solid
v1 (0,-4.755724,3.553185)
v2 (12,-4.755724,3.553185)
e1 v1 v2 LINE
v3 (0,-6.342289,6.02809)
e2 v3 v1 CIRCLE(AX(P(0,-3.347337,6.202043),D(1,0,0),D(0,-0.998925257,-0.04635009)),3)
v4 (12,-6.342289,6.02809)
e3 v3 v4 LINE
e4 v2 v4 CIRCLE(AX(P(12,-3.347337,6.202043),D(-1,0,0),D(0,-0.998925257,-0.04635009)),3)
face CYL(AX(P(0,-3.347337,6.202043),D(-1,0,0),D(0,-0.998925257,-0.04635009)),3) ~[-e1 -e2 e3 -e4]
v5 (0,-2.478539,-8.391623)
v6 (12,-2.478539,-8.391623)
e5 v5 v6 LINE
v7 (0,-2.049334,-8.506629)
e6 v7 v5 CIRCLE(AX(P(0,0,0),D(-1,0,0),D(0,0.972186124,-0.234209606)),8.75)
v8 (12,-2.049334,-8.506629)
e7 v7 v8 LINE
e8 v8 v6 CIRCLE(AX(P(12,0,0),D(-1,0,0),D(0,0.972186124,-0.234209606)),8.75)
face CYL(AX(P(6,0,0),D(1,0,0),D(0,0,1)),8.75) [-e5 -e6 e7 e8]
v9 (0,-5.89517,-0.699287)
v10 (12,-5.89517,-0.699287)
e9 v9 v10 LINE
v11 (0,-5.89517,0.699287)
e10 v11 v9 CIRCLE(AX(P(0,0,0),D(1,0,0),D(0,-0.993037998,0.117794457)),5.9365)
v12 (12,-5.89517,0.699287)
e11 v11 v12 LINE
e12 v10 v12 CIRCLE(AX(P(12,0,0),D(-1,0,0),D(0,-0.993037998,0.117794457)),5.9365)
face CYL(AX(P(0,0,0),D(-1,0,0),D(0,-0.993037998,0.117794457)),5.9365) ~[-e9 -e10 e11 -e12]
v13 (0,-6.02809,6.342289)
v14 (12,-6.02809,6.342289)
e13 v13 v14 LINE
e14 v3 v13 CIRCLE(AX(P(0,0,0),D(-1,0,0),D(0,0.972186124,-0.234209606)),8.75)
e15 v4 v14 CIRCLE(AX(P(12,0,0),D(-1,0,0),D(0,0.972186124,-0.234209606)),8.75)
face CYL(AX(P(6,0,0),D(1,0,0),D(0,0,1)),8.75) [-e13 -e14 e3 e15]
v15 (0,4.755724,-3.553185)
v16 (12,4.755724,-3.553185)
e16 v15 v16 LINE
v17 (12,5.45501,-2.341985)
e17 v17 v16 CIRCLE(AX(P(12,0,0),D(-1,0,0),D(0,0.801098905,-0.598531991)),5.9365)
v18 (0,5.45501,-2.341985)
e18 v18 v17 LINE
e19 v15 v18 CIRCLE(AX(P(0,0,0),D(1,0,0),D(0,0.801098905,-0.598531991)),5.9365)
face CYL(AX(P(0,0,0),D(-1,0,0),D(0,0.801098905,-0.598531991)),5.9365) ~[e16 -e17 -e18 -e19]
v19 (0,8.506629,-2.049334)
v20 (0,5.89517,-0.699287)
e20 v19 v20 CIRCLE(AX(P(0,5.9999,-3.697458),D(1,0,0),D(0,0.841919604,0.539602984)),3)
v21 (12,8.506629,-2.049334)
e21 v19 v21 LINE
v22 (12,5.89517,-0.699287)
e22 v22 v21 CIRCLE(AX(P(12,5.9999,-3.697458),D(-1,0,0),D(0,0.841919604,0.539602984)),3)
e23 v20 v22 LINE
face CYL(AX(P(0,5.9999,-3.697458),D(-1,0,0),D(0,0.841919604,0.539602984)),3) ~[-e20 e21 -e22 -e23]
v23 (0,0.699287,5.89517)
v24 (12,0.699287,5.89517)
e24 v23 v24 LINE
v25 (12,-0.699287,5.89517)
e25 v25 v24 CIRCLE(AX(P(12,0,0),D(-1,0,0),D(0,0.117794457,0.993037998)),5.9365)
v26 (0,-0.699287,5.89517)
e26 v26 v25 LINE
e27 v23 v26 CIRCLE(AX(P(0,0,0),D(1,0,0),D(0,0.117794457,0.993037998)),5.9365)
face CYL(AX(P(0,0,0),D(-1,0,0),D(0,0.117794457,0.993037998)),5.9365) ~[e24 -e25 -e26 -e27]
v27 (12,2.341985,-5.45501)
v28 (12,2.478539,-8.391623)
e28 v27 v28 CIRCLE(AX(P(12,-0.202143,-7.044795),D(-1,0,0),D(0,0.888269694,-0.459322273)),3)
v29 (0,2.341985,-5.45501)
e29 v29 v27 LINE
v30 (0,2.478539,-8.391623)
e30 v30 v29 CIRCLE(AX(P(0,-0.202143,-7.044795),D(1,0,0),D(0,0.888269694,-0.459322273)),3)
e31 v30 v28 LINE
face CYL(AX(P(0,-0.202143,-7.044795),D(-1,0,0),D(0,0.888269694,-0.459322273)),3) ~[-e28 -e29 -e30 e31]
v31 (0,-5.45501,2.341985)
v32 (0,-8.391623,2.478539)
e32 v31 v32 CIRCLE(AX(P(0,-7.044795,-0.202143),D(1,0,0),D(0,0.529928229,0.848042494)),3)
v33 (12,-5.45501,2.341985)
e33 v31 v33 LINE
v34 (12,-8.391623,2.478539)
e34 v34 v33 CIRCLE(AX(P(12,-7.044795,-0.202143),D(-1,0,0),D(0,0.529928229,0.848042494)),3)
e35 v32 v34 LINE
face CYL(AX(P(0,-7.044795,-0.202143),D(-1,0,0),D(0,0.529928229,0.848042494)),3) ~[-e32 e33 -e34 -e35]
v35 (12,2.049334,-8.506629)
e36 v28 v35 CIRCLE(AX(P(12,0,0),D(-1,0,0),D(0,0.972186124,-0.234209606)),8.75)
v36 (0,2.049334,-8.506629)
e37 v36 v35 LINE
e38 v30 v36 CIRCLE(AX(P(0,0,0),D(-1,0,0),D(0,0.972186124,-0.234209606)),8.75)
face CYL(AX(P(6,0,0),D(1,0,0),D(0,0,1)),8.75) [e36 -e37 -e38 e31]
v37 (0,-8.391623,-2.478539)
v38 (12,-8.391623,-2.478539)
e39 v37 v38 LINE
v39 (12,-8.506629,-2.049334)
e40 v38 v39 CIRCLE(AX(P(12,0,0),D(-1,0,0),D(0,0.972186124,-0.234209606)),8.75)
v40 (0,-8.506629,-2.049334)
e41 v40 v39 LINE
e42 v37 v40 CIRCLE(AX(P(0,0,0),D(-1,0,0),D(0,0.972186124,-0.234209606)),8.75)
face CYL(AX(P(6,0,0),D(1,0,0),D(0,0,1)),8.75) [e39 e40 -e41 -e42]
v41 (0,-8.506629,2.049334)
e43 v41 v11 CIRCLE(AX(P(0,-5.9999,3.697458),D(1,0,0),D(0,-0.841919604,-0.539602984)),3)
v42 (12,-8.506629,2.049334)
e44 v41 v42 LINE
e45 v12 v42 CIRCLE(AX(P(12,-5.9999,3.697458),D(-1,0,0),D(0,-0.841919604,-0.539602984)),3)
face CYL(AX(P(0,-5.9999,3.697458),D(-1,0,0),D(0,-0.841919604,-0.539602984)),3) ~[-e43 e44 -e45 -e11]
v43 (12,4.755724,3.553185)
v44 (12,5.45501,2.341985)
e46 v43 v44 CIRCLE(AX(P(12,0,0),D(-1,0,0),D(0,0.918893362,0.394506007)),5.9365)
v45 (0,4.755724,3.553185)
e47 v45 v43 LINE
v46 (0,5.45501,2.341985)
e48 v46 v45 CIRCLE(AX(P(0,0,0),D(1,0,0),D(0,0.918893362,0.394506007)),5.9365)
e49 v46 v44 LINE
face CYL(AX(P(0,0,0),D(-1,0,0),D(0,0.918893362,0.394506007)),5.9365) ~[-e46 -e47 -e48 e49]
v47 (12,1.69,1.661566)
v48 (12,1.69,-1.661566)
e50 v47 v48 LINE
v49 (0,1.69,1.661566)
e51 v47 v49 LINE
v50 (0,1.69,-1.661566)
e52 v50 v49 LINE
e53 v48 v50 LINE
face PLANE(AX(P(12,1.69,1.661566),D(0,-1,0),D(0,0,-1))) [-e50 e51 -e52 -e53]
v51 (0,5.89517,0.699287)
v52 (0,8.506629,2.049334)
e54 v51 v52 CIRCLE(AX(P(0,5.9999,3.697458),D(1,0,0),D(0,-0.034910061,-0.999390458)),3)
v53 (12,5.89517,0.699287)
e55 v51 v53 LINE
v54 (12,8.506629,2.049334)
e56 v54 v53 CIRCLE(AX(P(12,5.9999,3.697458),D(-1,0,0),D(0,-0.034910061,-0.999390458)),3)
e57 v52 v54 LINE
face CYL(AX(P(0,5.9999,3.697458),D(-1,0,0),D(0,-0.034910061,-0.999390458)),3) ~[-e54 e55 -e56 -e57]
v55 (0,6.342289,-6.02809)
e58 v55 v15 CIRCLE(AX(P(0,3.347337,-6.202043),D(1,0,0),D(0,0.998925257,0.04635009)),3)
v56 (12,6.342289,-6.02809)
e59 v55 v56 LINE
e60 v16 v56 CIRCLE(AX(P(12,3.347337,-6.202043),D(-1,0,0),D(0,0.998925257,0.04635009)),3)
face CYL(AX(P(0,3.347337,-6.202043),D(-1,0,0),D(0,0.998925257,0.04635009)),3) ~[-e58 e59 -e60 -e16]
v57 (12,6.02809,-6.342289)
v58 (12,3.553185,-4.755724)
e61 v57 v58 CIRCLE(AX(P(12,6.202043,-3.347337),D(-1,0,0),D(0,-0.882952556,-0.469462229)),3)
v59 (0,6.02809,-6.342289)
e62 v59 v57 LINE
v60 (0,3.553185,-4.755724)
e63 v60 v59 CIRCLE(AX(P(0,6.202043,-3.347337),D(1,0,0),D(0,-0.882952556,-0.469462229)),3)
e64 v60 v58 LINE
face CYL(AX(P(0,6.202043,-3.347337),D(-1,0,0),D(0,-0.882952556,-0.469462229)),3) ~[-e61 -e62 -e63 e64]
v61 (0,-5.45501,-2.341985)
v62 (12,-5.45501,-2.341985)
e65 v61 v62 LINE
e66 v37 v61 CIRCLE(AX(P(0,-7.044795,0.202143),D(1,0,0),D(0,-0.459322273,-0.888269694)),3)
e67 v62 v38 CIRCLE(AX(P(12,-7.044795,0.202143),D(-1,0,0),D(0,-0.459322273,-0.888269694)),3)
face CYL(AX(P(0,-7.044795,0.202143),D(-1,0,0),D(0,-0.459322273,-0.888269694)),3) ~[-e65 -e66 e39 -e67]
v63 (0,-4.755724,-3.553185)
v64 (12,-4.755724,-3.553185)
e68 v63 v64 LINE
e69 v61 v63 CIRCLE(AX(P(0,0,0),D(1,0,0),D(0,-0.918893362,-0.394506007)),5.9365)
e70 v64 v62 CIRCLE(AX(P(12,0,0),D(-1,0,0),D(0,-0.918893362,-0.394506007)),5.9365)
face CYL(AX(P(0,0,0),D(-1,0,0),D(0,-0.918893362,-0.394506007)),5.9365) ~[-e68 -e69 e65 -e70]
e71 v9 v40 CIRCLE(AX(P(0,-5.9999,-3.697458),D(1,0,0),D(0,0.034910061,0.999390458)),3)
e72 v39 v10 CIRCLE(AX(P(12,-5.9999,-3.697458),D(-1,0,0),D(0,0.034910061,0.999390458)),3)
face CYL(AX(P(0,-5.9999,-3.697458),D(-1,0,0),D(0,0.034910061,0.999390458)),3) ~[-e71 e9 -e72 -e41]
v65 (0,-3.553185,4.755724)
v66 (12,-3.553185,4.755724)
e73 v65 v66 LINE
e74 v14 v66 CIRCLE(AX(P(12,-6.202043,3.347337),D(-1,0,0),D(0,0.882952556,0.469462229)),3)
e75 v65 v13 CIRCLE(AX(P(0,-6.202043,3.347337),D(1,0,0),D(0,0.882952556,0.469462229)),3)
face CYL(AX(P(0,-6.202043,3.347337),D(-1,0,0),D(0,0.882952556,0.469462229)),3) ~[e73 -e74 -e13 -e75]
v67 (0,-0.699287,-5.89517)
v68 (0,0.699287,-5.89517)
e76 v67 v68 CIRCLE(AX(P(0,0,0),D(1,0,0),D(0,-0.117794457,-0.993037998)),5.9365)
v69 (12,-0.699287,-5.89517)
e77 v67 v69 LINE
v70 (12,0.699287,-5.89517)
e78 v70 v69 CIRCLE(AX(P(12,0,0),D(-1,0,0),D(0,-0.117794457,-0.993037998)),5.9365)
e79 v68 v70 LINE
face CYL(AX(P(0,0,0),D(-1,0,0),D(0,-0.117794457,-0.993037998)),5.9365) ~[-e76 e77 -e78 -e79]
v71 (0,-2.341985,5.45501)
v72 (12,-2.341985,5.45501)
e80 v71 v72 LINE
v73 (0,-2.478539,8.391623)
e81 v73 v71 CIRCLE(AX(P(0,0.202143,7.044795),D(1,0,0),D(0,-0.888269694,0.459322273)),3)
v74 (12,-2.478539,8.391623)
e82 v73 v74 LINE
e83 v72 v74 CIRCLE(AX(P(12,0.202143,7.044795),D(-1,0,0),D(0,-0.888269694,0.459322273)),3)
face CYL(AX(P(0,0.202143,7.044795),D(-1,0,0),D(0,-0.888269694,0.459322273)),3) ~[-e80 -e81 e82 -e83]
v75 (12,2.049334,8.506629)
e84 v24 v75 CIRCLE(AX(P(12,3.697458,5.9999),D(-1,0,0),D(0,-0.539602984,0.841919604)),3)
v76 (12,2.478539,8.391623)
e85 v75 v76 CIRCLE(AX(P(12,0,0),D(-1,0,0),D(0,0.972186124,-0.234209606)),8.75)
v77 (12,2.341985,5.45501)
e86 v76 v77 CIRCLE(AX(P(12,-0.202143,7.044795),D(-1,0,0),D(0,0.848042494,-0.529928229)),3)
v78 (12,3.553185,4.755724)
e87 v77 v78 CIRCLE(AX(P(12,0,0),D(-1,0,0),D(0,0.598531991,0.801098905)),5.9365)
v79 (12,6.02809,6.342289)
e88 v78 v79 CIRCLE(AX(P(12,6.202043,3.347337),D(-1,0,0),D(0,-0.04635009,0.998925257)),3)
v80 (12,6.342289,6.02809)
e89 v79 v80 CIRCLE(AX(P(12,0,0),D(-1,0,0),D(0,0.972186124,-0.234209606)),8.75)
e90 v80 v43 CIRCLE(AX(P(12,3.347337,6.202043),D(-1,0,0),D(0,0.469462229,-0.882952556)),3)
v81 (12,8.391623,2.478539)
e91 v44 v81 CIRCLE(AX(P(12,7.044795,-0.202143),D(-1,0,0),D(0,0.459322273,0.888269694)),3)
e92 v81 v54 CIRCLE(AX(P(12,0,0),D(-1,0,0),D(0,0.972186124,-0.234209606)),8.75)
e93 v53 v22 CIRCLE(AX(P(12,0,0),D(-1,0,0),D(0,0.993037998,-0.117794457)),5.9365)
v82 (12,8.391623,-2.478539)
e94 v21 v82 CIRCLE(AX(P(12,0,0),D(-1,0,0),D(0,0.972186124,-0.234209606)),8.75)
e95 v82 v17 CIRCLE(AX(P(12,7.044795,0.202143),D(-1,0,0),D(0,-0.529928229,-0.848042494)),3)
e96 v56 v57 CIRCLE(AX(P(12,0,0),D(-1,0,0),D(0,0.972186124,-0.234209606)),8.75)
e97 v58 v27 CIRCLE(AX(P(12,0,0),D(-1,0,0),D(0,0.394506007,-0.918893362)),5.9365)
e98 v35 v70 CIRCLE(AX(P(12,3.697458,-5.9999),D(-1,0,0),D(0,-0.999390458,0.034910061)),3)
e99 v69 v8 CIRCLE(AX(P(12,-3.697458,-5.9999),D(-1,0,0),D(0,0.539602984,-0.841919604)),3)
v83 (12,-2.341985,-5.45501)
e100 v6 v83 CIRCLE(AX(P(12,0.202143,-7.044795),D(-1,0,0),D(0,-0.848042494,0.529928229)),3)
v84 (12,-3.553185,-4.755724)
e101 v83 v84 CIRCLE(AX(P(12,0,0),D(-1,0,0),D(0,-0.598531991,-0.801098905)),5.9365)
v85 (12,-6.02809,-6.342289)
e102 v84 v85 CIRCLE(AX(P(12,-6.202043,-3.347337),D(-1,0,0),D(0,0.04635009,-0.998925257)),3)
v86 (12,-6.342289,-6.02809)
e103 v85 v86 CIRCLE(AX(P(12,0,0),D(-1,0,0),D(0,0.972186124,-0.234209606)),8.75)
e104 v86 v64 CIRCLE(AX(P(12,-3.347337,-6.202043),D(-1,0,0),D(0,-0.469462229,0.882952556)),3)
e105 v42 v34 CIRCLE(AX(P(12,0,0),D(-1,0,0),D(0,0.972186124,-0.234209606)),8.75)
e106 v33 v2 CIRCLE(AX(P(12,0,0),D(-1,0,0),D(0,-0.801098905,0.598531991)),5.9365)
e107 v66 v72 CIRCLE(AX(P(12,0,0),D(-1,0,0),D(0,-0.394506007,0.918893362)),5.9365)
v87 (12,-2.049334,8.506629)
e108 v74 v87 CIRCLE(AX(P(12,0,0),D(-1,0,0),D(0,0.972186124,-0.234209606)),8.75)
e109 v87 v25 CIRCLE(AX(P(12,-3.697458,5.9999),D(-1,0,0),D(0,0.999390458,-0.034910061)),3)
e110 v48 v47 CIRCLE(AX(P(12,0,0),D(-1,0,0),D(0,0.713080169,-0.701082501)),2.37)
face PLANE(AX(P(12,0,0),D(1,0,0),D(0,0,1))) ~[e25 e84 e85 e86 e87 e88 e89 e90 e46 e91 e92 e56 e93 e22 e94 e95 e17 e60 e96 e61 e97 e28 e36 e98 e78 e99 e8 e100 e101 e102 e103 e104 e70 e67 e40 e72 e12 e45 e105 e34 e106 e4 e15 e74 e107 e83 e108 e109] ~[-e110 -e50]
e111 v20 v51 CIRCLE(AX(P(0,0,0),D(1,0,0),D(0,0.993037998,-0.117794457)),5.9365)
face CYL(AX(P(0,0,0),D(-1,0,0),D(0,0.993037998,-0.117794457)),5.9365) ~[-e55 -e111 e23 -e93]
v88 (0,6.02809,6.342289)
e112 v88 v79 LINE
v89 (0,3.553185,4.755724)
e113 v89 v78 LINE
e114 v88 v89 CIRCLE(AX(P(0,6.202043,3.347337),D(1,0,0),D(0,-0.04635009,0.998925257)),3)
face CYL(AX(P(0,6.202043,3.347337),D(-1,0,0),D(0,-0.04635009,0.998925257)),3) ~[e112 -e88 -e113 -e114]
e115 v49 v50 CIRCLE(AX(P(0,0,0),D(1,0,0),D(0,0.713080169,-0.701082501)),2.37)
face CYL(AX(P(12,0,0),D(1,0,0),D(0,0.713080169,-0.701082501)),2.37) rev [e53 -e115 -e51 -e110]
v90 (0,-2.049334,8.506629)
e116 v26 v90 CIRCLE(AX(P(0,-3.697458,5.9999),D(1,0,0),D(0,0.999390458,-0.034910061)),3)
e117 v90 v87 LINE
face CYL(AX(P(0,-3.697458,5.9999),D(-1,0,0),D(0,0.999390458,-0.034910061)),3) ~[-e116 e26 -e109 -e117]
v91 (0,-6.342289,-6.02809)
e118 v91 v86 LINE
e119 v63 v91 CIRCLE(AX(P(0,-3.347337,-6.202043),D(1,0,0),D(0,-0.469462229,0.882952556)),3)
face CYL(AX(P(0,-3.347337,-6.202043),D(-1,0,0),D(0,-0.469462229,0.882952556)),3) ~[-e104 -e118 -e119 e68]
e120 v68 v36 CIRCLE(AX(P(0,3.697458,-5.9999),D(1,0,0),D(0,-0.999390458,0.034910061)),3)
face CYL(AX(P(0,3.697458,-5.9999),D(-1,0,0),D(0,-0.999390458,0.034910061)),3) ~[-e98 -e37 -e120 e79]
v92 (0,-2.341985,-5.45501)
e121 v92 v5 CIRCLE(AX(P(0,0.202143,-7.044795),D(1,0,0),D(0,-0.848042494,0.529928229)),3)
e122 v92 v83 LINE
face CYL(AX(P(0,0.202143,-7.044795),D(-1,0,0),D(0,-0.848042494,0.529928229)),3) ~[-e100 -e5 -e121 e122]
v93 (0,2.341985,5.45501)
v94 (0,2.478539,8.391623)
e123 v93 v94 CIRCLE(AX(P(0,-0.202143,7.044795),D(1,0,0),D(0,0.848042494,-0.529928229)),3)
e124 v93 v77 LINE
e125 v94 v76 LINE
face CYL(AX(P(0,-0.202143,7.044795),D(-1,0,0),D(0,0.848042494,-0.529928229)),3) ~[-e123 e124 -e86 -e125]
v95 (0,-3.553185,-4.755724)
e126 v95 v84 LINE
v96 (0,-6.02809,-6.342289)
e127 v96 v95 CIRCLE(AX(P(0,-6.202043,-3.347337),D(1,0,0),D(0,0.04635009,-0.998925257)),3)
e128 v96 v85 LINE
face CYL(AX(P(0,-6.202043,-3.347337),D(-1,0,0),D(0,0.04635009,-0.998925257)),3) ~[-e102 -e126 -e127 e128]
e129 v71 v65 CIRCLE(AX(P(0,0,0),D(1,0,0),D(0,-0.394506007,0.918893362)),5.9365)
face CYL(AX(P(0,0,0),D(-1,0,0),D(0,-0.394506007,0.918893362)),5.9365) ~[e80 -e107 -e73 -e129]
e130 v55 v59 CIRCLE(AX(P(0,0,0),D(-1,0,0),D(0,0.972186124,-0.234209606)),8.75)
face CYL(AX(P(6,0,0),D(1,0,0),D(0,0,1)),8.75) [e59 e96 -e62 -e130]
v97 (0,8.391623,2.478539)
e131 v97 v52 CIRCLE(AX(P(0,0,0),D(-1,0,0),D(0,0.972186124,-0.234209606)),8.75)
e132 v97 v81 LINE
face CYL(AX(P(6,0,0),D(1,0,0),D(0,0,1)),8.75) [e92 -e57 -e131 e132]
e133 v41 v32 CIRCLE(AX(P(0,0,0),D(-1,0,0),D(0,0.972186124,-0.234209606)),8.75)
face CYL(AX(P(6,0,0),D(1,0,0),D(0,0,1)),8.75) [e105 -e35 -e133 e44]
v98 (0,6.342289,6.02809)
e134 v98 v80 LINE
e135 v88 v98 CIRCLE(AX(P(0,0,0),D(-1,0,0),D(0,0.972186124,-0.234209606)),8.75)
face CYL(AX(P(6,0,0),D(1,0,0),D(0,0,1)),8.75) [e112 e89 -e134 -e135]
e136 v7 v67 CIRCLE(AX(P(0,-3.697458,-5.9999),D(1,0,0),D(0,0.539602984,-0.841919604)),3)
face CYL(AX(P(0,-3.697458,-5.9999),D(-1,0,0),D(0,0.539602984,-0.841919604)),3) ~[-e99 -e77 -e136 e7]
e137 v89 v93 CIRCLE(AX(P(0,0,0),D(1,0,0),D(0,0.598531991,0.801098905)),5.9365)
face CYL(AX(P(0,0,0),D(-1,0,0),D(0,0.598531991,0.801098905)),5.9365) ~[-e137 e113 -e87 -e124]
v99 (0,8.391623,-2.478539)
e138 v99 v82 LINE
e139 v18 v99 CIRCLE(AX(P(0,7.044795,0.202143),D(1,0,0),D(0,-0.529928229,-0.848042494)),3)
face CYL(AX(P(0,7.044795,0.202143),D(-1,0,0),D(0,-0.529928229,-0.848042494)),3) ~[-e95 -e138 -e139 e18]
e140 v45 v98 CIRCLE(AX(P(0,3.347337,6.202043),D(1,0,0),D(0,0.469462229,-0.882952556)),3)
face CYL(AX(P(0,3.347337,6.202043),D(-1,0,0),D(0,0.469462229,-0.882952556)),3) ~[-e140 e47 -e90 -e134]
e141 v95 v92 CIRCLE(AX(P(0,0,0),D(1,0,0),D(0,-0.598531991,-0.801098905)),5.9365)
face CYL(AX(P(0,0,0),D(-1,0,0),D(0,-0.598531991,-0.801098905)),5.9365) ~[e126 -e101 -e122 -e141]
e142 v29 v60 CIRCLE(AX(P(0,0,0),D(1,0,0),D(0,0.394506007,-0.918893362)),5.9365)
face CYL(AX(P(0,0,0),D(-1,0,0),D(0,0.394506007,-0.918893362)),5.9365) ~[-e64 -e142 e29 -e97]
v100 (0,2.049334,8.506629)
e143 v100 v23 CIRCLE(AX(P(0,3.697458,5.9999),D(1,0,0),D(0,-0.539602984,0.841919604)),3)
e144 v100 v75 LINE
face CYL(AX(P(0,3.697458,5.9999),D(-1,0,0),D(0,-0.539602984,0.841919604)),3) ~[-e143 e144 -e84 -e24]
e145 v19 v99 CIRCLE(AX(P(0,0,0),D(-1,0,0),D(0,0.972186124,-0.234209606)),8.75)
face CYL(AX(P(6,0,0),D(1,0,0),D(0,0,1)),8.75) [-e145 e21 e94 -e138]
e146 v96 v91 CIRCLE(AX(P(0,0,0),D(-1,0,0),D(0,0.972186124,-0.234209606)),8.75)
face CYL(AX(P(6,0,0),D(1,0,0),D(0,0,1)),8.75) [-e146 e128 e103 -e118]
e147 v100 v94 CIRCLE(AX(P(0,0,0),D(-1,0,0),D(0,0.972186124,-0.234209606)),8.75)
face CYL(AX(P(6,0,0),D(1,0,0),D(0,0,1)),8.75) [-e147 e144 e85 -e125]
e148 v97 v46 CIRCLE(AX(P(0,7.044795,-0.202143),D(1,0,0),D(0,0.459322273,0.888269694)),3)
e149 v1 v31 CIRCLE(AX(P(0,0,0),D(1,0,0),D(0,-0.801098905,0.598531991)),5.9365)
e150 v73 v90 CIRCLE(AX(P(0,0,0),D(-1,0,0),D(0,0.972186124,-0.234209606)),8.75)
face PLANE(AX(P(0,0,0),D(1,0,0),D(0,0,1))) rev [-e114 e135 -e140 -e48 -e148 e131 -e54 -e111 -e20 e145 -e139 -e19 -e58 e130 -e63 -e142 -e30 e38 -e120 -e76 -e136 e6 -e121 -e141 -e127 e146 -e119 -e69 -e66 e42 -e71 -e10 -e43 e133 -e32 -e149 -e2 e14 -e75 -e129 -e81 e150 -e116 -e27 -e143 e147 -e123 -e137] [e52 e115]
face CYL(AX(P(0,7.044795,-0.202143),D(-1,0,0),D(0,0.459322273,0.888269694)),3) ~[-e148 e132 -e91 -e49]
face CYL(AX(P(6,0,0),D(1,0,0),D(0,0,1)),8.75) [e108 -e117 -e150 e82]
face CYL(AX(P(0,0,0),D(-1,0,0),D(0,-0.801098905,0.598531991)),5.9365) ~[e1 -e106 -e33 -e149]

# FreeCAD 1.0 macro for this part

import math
import FreeCAD as App
import Part
import Sketcher
Q = App.Units.Quantity


def add_polygon(sketch, points):
    """Adds a closed chain of lines whose ends are joined by coincident constraints."""
    first, n = sketch.GeometryCount, len(points)
    for a, b in zip(points, points[1:] + points[:1]):
        sketch.addGeometry(Part.LineSegment(App.Vector(*a, 0), App.Vector(*b, 0)), False)
    for i in range(n):
        sketch.addConstraint(Sketcher.Constraint("Coincident", first + i, 2, first + (i + 1) % n, 1))

doc = App.newDocument("Part")
params = doc.addObject("Spreadsheet::Sheet", "Params")
for row, (alias, value) in enumerate([
    ("sketch1_width", "12 mm"),
    ("sketch1_height", "8.75 mm"),
    ("revolution_angle", "360 deg"),
    ("sketch2_radius", "3 mm"),
    ("sketch3_diameter", "0.8 mm"),
    ("pocket2_length", "100.000102 mm"),
    ("sketch4_radius", "2.37 mm"),
], start=1):
    params.set(f"A{row}", alias)
    params.set(f"B{row}", "=" + value)
    params.setAlias(f"B{row}", alias)

body = doc.addObject("PartDesign::Body", "Body")

# Sketch on XZ plane
sketch1 = body.newObject("Sketcher::SketchObject", "Sketch")
sketch1.AttachmentSupport = (doc.getObject("XZ_Plane"), [""])
sketch1.MapMode = "FlatFace"
add_polygon(sketch1, [(0, -9), (0, 0), (12, 0), (12, -9)])  # lines 0-3
sketch1.addConstraint([
    Sketcher.Constraint("Vertical", 0),
    Sketcher.Constraint("Horizontal", 1),
    Sketcher.Constraint("Vertical", 2),
    Sketcher.Constraint("Horizontal", 3),
    Sketcher.Constraint("Coincident", 0, 2, -1, 1),
    Sketcher.Constraint("DistanceX", 1, 1, 1, 2, Q("12 mm")),
    Sketcher.Constraint("DistanceY", 0, 1, 0, 2, Q("8.75 mm")),
])
sketch1.setExpression("Constraints[9]", "Params.sketch1_width")
sketch1.setExpression("Constraints[10]", "Params.sketch1_height")
revolution = body.newObject("PartDesign::Revolution", "Revolution")
revolution.Profile = sketch1
revolution.ReferenceAxis = (sketch1, ["H_Axis"])
revolution.setExpression("Angle", "Params.revolution_angle")

# Sketch on YZ plane
sketch2 = body.newObject("Sketcher::SketchObject", "Sketch001")
sketch2.AttachmentSupport = (doc.getObject("YZ_Plane"), [""])
sketch2.MapMode = "FlatFace"
sketch2.addGeometry([
    Part.ArcOfCircle(Part.Circle(App.Vector(0, 0, 0), App.Vector(0, 0, 1), 5.9), math.radians(-6.76), math.radians(6.76)),
    Part.ArcOfCircle(Part.Circle(App.Vector(6, -3.7, 0), App.Vector(0, 0, 1), 3), math.radians(33), math.radians(92)),
    Part.ArcOfCircle(Part.Circle(App.Vector(0, 0, 0), App.Vector(0, 0, 1), 8.8), math.radians(-14), math.radians(14)),
    Part.ArcOfCircle(Part.Circle(App.Vector(6, 3.7, 0), App.Vector(0, 0, 1), 3), math.radians(-92), math.radians(-33)),
], False)
sketch2.addConstraint([
    Sketcher.Constraint("Coincident", 0, 1, 1, 2),
    Sketcher.Constraint("Coincident", 1, 1, 2, 1),
    Sketcher.Constraint("Coincident", 2, 2, 3, 2),
    Sketcher.Constraint("Coincident", 3, 1, 0, 2),
    Sketcher.Constraint("Coincident", 0, 3, -1, 1),
    Sketcher.Constraint("Coincident", 2, 3, -1, 1),
    Sketcher.Constraint("Equal", 1, 3),
    Sketcher.Constraint("Symmetric", 1, 3, 3, 3, -1),
    Sketcher.Constraint("Radius", 1, Q("3 mm")),
    Sketcher.Constraint("Radius", 0, Q("5.9365 mm")),
    Sketcher.Constraint("Radius", 2, Q("8.7754 mm")),
    Sketcher.Constraint("DistanceX", -1, 1, 1, 3, Q("5.9999 mm")),
    Sketcher.Constraint("DistanceY", 1, 1, 2, 2, Q("4.157298 mm")),
])
sketch2.setExpression("Constraints[8]", "Params.sketch2_radius")
pocket1 = body.newObject("PartDesign::Pocket", "Pocket")
pocket1.Profile = sketch2
pocket1.Type = "ThroughAll"
pocket1.Reversed = True
doc.recompute()

polarpattern = body.newObject("PartDesign::PolarPattern", "PolarPattern")
polarpattern.Originals = [pocket1]
polarpattern.Axis = (doc.getObject("X_Axis"), [""])
polarpattern.Angle = 360
polarpattern.Occurrences = 12
body.Tip = polarpattern

# Sketch on YZ plane
sketch3 = body.newObject("Sketcher::SketchObject", "Sketch002")
sketch3.AttachmentSupport = (doc.getObject("YZ_Plane"), [""])
sketch3.MapMode = "FlatFace"
sketch3.addGeometry(Part.Circle(App.Vector(0, 0, 0), App.Vector(0, 0, 1), 0.4), False)
sketch3.addConstraint([
    Sketcher.Constraint("Coincident", 0, 3, -1, 1),
    Sketcher.Constraint("Diameter", 0, Q("0.8 mm")),
])
sketch3.setExpression("Constraints[1]", "Params.sketch3_diameter")
pocket2 = body.newObject("PartDesign::Pocket", "Pocket001")
pocket2.Profile = sketch3
pocket2.setExpression("Length", "Params.pocket2_length")
pocket2.Midplane = True

# Sketch on YZ plane
sketch4 = body.newObject("Sketcher::SketchObject", "Sketch003")
sketch4.AttachmentSupport = (doc.getObject("YZ_Plane"), [""])
sketch4.MapMode = "FlatFace"
sketch4.AttachmentOffset = App.Placement(App.Vector(0, 0, 12), App.Rotation())
sketch4.addGeometry([
    Part.LineSegment(App.Vector(1.7, -1.7, 0), App.Vector(1.7, 1.7, 0)),
    Part.ArcOfCircle(Part.Circle(App.Vector(0, 0, 0), App.Vector(0, 0, 1), 2.4), math.radians(45), math.radians(315)),
], False)
sketch4.addConstraint([
    Sketcher.Constraint("Coincident", 0, 1, 1, 2),
    Sketcher.Constraint("Coincident", 1, 1, 0, 2),
    Sketcher.Constraint("Vertical", 0),
    Sketcher.Constraint("Coincident", 1, 3, -1, 1),
    Sketcher.Constraint("Radius", 1, Q("2.37 mm")),
    Sketcher.Constraint("DistanceX", -1, 1, 0, 1, Q("1.69 mm")),
])
sketch4.setExpression("Constraints[4]", "Params.sketch4_radius")
pocket3 = body.newObject("PartDesign::Pocket", "Pocket002")
pocket3.Profile = sketch4
pocket3.Type = "ThroughAll"

doc.recompute()
